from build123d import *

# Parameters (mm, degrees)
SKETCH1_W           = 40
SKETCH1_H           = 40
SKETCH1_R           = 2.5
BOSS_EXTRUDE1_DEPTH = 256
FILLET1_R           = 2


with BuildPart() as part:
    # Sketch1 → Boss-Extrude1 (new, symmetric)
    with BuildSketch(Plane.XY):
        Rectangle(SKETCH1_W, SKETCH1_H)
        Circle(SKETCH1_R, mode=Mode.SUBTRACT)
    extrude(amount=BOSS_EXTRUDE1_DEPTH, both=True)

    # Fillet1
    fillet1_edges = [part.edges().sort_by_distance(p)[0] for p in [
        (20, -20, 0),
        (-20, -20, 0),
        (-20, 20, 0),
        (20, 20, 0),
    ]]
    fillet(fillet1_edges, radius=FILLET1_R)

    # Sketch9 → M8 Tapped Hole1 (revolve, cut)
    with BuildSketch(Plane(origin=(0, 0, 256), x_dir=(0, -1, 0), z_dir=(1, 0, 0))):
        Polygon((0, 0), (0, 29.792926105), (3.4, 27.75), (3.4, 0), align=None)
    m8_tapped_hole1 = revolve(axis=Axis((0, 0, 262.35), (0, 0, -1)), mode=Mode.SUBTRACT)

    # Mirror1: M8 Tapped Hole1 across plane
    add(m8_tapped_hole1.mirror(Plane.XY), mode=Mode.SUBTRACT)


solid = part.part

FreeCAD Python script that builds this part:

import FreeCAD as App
import Part
import Sketcher
Q = App.Units.Quantity


def edges_at(feature, points):
    """Names of the edges that pass closest to the given points."""
    edges = feature.Shape.Edges
    near = lambda p: min(range(len(edges)), key=lambda i: edges[i].distToShape(Part.Vertex(*p))[0])
    return sorted({f"Edge{near(p) + 1}" for p in points})


def add_polygon(sketch, points):
    """Adds a closed chain of lines whose ends are joined by coincident constraints."""
    first, n = sketch.GeometryCount, len(points)
    for a, b in zip(points, points[1:] + points[:1]):
        sketch.addGeometry(Part.LineSegment(App.Vector(*a, 0), App.Vector(*b, 0)), False)
    for i in range(n):
        sketch.addConstraint(Sketcher.Constraint("Coincident", first + i, 2, first + (i + 1) % n, 1))

doc = App.newDocument("Part")
params = doc.addObject("Spreadsheet::Sheet", "Params")
for row, (alias, value) in enumerate([
    ("sketch1_diameter", "5 mm"),
    ("sketch1_width", "40 mm"),
    ("pad1_length", "512 mm"),
    ("fillet_radius", "2 mm"),
    ("sketch2_width", "3.4 mm"),
    ("sketch2_height", "27.75 mm"),
    ("groove_angle", "360 deg"),
], start=1):
    params.set(f"A{row}", alias)
    params.set(f"B{row}", "=" + value)
    params.setAlias(f"B{row}", alias)

body = doc.addObject("PartDesign::Body", "Body")

sketch1 = doc.addObject("Sketcher::SketchObject", "Sketch")
body.addObject(sketch1)
sketch1.AttachmentSupport = (doc.XY_Plane, [""])
sketch1.MapMode = "FlatFace"
add_polygon(sketch1, [(-20, 20), (-20, -20), (20, -20), (20, 20)])
sketch1.addGeometry(Part.Circle(App.Vector(0, 0, 0), App.Vector(0, 0, 1), 2.5), False)
sketch1.addConstraint(Sketcher.Constraint("Vertical", 0))
sketch1.addConstraint(Sketcher.Constraint("Horizontal", 1))
sketch1.addConstraint(Sketcher.Constraint("Vertical", 2))
sketch1.addConstraint(Sketcher.Constraint("Horizontal", 3))
sketch1.addConstraint(Sketcher.Constraint("Coincident", 4, 3, -1, 1))
sketch1.addConstraint(Sketcher.Constraint("Symmetric", 0, 2, 2, 2, -1, 1))
sketch1.addConstraint(Sketcher.Constraint("Equal", 3, 0))
sketch1.addConstraint(Sketcher.Constraint("Diameter", 4, 5.0))
sketch1.addConstraint(Sketcher.Constraint("DistanceX", 1, 1, 1, 2, 40.0))
sketch1.setExpression("Constraints[11]", "Params.sketch1_diameter")
sketch1.setExpression("Constraints[12]", "Params.sketch1_width")
pad1 = doc.addObject("PartDesign::Pad", "Pad")
body.addObject(pad1)
pad1.Profile = sketch1
pad1.setExpression("Length", "Params.pad1_length")
pad1.Midplane = True
doc.recompute()

fillet = doc.addObject("PartDesign::Fillet", "Fillet")
body.addObject(fillet)
fillet.Base = (pad1, edges_at(pad1, [
    (20, -20, 0),
    (-20, -20, 0),
    (-20, 20, 0),
    (20, 20, 0),
]))
fillet.setExpression("Radius", "Params.fillet_radius")

sketch2 = doc.addObject("Sketcher::SketchObject", "Sketch001")
body.addObject(sketch2)
sketch2.AttachmentSupport = (doc.YZ_Plane, [""])
sketch2.MapMode = "FlatFace"
add_polygon(sketch2, [(0, 226.2), (0, 256), (-3.4, 256), (-3.4, 228.2)])
sketch2.addConstraint(Sketcher.Constraint("Vertical", 0))
sketch2.addConstraint(Sketcher.Constraint("Horizontal", 1))
sketch2.addConstraint(Sketcher.Constraint("Vertical", 2))
sketch2.addConstraint(Sketcher.Constraint("PointOnObject", 0, 2, -2))
sketch2.addConstraint(Sketcher.Constraint("Angle", 3, Q("-31 deg")))
sketch2.addConstraint(Sketcher.Constraint("DistanceX", 1, 2, 1, 1, 3.4))
sketch2.addConstraint(Sketcher.Constraint("DistanceY", -1, 1, 0, 2, 256.0))
sketch2.addConstraint(Sketcher.Constraint("DistanceY", 2, 2, 2, 1, 27.75))
sketch2.setExpression("Constraints[9]", "Params.sketch2_width")
sketch2.setExpression("Constraints[11]", "Params.sketch2_height")
groove = doc.addObject("PartDesign::Groove", "Groove")
body.addObject(groove)
groove.Profile = sketch2
groove.ReferenceAxis = (sketch2, ["V_Axis"])
groove.setExpression("Angle", "Params.groove_angle")
doc.recompute()

mirrored = doc.addObject("PartDesign::Mirrored", "Mirrored")
body.addObject(mirrored)
mirrored.Originals = [groove]
mirrored.MirrorPlane = (doc.XY_Plane, [""])
body.Tip = mirrored

doc.recompute()
